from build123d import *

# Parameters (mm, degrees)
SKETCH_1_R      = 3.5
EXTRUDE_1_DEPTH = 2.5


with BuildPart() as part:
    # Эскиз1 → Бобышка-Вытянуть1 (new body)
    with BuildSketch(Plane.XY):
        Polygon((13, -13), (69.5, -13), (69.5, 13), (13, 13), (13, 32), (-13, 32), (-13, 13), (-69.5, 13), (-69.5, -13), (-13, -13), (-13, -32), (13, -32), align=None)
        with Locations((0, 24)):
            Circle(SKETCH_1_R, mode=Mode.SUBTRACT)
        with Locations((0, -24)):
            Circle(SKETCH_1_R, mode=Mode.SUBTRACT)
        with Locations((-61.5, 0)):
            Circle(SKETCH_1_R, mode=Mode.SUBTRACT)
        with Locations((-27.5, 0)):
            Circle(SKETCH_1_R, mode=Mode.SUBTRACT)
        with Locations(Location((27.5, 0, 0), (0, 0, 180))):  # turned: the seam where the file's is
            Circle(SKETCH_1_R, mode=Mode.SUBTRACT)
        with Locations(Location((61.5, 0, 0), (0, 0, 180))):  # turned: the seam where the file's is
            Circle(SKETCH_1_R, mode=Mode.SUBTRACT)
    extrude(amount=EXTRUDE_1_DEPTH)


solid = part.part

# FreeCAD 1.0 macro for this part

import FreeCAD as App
import Part
import Sketcher


def add_polygon(sketch, points):
    """Adds a closed chain of lines whose ends are joined by coincident constraints."""
    first, n = sketch.GeometryCount, len(points)
    for a, b in zip(points, points[1:] + points[:1]):
        sketch.addGeometry(Part.LineSegment(App.Vector(*a, 0), App.Vector(*b, 0)), False)
    for i in range(n):
        sketch.addConstraint(Sketcher.Constraint("Coincident", first + i, 2, first + (i + 1) % n, 1))

doc = App.newDocument("Part")
body = doc.addObject("PartDesign::Body", "Body")

# Sketch on XY plane
sketch1 = body.newObject("Sketcher::SketchObject", "Sketch")
sketch1.AttachmentSupport = (doc.getObject("XY_Plane"), [""])
sketch1.MapMode = "FlatFace"
add_polygon(sketch1, [(13, -13), (69.5, -13), (69.5, 13), (13, 13), (13, 32), (-13, 32), (-13, 13), (-69.5, 13), (-69.5, -13), (-13, -13), (-13, -32), (13, -32)])  # lines 0-11
sketch1.addGeometry(Part.Circle(App.Vector(0, -24, 0), App.Vector(0, 0, 1), 3.5), False)  # 12
sketch1.addGeometry(Part.Circle(App.Vector(-61.5, 0, 0), App.Vector(0, 0, 1), 3.5), False)  # 13
sketch1.addGeometry(Part.Circle(App.Vector(-27.5, 0, 0), App.Vector(0, 0, 1), 3.5), False)  # 14
sketch1.addGeometry(Part.Circle(App.Vector(27.5, 0, 0), App.Vector(0, 0, 1), 3.5), False)  # 15
sketch1.addGeometry(Part.Circle(App.Vector(61.5, 0, 0), App.Vector(0, 0, 1), 3.5), False)  # 16
sketch1.addGeometry(Part.Circle(App.Vector(0, 24, 0), App.Vector(0, 0, 1), 3.5), False)  # 17
sketch1.addConstraint([
    Sketcher.Constraint("Horizontal", 0),
    Sketcher.Constraint("Vertical", 1),
    Sketcher.Constraint("Horizontal", 2),
    Sketcher.Constraint("Vertical", 3),
    Sketcher.Constraint("Horizontal", 4),
    Sketcher.Constraint("Vertical", 5),
    Sketcher.Constraint("Horizontal", 6),
    Sketcher.Constraint("Vertical", 7),
    Sketcher.Constraint("Horizontal", 8),
    Sketcher.Constraint("Vertical", 9),
    Sketcher.Constraint("Horizontal", 10),
    Sketcher.Constraint("Vertical", 11),
    Sketcher.Constraint("Equal", 12, 13),
    Sketcher.Constraint("Equal", 13, 14),
    Sketcher.Constraint("Equal", 14, 15),
    Sketcher.Constraint("Equal", 15, 16),
    Sketcher.Constraint("Equal", 16, 17),
    Sketcher.Constraint("Symmetric", 14, 3, 15, 3, -1, 1),
    Sketcher.Constraint("Symmetric", 13, 3, 16, 3, -1, 1),
    Sketcher.Constraint("Symmetric", 12, 3, 17, 3, -1, 1),
    Sketcher.Constraint("Symmetric", 0, 2, 6, 2, -1, 1),
    Sketcher.Constraint("Symmetric", 2, 2, 8, 2, -1, 1),
    Sketcher.Constraint("Symmetric", 4, 2, 10, 2, -1, 1),
    Sketcher.Constraint("Symmetric", 2, 2, 5, 2, -2),
    Sketcher.Constraint("PointOnObject", 12, 3, -2),
    Sketcher.Constraint("PointOnObject", 13, 3, -1),
    Sketcher.Constraint("PointOnObject", 14, 3, -1),
    Sketcher.Constraint("Equal", 10, 1),
    Sketcher.Constraint("Diameter", 12, 7.0),
    Sketcher.Constraint("DistanceX", 4, 2, 4, 1, 26.0),
    Sketcher.Constraint("DistanceY", 3, 1, 3, 2, 19.0),
    Sketcher.Constraint("DistanceX", 0, 1, 0, 2, 56.5),
    Sketcher.Constraint("DistanceY", 12, 3, -1, 1, 24.0),
    Sketcher.Constraint("DistanceX", 13, 3, 14, 3, 34.0),
    Sketcher.Constraint("DistanceX", 14, 3, 15, 3, 55.0),
])
pad1 = body.newObject("PartDesign::Pad", "Pad")
pad1.Profile = sketch1
pad1.Length = 2.5

doc.recompute()
